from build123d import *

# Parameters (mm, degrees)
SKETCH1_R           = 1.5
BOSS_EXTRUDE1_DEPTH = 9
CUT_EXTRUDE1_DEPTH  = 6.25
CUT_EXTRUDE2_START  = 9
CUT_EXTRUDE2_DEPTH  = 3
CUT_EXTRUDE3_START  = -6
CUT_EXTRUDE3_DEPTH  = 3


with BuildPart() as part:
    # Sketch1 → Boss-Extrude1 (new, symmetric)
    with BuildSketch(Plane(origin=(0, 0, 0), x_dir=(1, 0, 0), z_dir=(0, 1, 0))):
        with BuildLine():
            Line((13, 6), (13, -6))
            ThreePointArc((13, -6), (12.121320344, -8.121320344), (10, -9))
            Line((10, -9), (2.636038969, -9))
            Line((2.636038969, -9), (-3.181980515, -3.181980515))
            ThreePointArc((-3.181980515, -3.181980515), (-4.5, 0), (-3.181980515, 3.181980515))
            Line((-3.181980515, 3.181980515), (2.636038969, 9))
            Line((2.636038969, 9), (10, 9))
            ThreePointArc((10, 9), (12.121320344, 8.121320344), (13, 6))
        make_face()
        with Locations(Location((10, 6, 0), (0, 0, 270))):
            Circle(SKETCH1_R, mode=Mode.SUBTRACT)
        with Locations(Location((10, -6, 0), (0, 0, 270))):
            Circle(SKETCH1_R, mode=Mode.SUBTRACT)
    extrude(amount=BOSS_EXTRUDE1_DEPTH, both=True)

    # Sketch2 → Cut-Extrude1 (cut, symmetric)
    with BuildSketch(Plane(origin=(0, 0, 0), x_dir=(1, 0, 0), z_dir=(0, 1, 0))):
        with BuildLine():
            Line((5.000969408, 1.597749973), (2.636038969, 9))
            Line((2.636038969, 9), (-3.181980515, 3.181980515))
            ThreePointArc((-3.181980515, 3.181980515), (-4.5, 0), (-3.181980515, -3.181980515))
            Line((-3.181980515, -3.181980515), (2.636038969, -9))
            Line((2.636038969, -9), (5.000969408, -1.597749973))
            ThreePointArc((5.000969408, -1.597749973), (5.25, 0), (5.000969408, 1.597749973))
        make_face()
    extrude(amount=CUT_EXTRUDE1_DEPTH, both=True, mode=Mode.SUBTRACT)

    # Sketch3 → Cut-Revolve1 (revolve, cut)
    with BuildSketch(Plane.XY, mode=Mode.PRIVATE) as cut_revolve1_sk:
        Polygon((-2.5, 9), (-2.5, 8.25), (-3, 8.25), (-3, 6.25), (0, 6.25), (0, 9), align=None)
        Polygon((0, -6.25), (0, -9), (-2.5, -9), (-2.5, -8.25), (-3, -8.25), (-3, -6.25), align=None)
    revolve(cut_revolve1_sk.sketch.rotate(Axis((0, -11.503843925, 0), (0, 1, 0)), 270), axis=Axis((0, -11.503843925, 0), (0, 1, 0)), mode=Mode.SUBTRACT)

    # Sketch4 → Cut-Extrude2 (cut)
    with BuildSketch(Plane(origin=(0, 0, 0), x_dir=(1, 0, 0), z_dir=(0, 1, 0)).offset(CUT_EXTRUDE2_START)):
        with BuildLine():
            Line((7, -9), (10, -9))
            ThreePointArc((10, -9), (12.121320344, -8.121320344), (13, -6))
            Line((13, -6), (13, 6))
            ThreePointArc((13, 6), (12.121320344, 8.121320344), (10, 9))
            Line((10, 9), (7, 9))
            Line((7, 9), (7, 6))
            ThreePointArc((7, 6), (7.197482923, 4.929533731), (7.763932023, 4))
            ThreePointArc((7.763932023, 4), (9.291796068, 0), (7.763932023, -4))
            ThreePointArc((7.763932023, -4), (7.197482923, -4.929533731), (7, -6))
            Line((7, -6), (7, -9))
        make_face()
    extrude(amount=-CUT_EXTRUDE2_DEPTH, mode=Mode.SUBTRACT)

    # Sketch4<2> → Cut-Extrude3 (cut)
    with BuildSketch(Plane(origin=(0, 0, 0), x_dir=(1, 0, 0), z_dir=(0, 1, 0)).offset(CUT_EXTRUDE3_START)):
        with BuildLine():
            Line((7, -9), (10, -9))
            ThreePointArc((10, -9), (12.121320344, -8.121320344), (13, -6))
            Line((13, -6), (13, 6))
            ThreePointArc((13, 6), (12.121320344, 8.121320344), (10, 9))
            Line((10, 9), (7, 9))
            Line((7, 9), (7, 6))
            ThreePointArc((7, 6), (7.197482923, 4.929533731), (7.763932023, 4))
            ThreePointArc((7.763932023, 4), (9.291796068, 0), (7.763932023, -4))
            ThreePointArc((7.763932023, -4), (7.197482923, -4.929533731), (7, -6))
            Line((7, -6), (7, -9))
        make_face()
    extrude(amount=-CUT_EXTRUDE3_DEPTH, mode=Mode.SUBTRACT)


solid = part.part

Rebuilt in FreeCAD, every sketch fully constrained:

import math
import FreeCAD as App
import Part
import Sketcher
Q = App.Units.Quantity


def add_polygon(sketch, points):
    """Adds a closed chain of lines whose ends are joined by coincident constraints."""
    first, n = sketch.GeometryCount, len(points)
    for a, b in zip(points, points[1:] + points[:1]):
        sketch.addGeometry(Part.LineSegment(App.Vector(*a, 0), App.Vector(*b, 0)), False)
    for i in range(n):
        sketch.addConstraint(Sketcher.Constraint("Coincident", first + i, 2, first + (i + 1) % n, 1))

doc = App.newDocument("Part")
body = doc.addObject("PartDesign::Body", "Body")

sketch1 = body.newObject("Sketcher::SketchObject", "Sketch")
sketch1.AttachmentSupport = (doc.getObject("XZ_Plane"), [""])
sketch1.MapMode = "FlatFace"
sketch1.addGeometry(Part.LineSegment(App.Vector(13, 6, 0), App.Vector(13, -6, 0)), False)
sketch1.addGeometry(Part.ArcOfCircle(Part.Circle(App.Vector(10, -6, 0), App.Vector(0, 0, 1), 3), math.radians(-90), math.radians(0)), False)
sketch1.addGeometry(Part.LineSegment(App.Vector(10, -9, 0), App.Vector(2.6, -9, 0)), False)
sketch1.addGeometry(Part.LineSegment(App.Vector(2.6, -9, 0), App.Vector(-3.2, -3.2, 0)), False)
sketch1.addGeometry(Part.ArcOfCircle(Part.Circle(App.Vector(0, 0, 0), App.Vector(0, 0, 1), 4.5), math.radians(135), math.radians(225)), False)
sketch1.addGeometry(Part.LineSegment(App.Vector(-3.2, 3.2, 0), App.Vector(2.6, 9, 0)), False)
sketch1.addGeometry(Part.LineSegment(App.Vector(2.6, 9, 0), App.Vector(10, 9, 0)), False)
sketch1.addGeometry(Part.ArcOfCircle(Part.Circle(App.Vector(10, 6, 0), App.Vector(0, 0, 1), 3), math.radians(0), math.radians(90)), False)
sketch1.addGeometry(Part.Circle(App.Vector(10, 6, 0), App.Vector(0, 0, 1), 1.5), False)
sketch1.addGeometry(Part.Circle(App.Vector(10, -6, 0), App.Vector(0, 0, 1), 1.5), False)
sketch1.addConstraint(Sketcher.Constraint("Tangent", 0, 2, 1, 2))
sketch1.addConstraint(Sketcher.Constraint("Tangent", 1, 1, 2, 1))
sketch1.addConstraint(Sketcher.Constraint("Coincident", 2, 2, 3, 1))
sketch1.addConstraint(Sketcher.Constraint("Tangent", 3, 2, 4, 2))
sketch1.addConstraint(Sketcher.Constraint("Tangent", 4, 1, 5, 1))
sketch1.addConstraint(Sketcher.Constraint("Coincident", 5, 2, 6, 1))
sketch1.addConstraint(Sketcher.Constraint("Tangent", 6, 2, 7, 2))
sketch1.addConstraint(Sketcher.Constraint("Tangent", 7, 1, 0, 1))
sketch1.addConstraint(Sketcher.Constraint("Vertical", 0))
sketch1.addConstraint(Sketcher.Constraint("Horizontal", 2))
sketch1.addConstraint(Sketcher.Constraint("Horizontal", 6))
sketch1.addConstraint(Sketcher.Constraint("Coincident", 4, 3, -1, 1))
sketch1.addConstraint(Sketcher.Constraint("Coincident", 8, 3, 7, 3))
sketch1.addConstraint(Sketcher.Constraint("Coincident", 9, 3, 1, 3))
sketch1.addConstraint(Sketcher.Constraint("Equal", 1, 7))
sketch1.addConstraint(Sketcher.Constraint("Equal", 8, 9))
sketch1.addConstraint(Sketcher.Constraint("Symmetric", 2, 2, 5, 2, -1))
sketch1.addConstraint(Sketcher.Constraint("Perpendicular", 3, 5))
sketch1.addConstraint(Sketcher.Constraint("Diameter", 8, Q("3 mm")))
sketch1.addConstraint(Sketcher.Constraint("Radius", 1, Q("3 mm")))
sketch1.addConstraint(Sketcher.Constraint("Radius", 4, Q("4.5 mm")))
sketch1.addConstraint(Sketcher.Constraint("DistanceY", 0, 2, 0, 1, Q("12 mm")))
sketch1.addConstraint(Sketcher.Constraint("DistanceX", -1, 1, 1, 3, Q("10 mm")))
pad1 = body.newObject("PartDesign::Pad", "Pad")
pad1.Profile = sketch1
pad1.Length = 18
pad1.Midplane = True

sketch2 = body.newObject("Sketcher::SketchObject", "Sketch001")
sketch2.AttachmentSupport = (doc.getObject("XZ_Plane"), [""])
sketch2.MapMode = "FlatFace"
sketch2.addGeometry(Part.LineSegment(App.Vector(5, -1.6, 0), App.Vector(2.6, -9, 0)), False)
sketch2.addGeometry(Part.LineSegment(App.Vector(2.6, -9, 0), App.Vector(-3.2, -3.2, 0)), False)
sketch2.addGeometry(Part.ArcOfCircle(Part.Circle(App.Vector(0, 0, 0), App.Vector(0, 0, 1), 4.5), math.radians(135), math.radians(225)), False)
sketch2.addGeometry(Part.LineSegment(App.Vector(-3.2, 3.2, 0), App.Vector(2.6, 9, 0)), False)
sketch2.addGeometry(Part.LineSegment(App.Vector(2.6, 9, 0), App.Vector(5, 1.6, 0)), False)
sketch2.addGeometry(Part.ArcOfCircle(Part.Circle(App.Vector(0, 0, 0), App.Vector(0, 0, 1), 5.2), math.radians(-18), math.radians(18)), False)
sketch2.addConstraint(Sketcher.Constraint("Coincident", 0, 2, 1, 1))
sketch2.addConstraint(Sketcher.Constraint("Tangent", 1, 2, 2, 2))
sketch2.addConstraint(Sketcher.Constraint("Tangent", 2, 1, 3, 1))
sketch2.addConstraint(Sketcher.Constraint("Coincident", 3, 2, 4, 1))
sketch2.addConstraint(Sketcher.Constraint("Tangent", 4, 2, 5, 2))
sketch2.addConstraint(Sketcher.Constraint("Tangent", 5, 1, 0, 1))
sketch2.addConstraint(Sketcher.Constraint("Coincident", 2, 3, -1, 1))
sketch2.addConstraint(Sketcher.Constraint("Coincident", 5, 3, -1, 1))
sketch2.addConstraint(Sketcher.Constraint("Symmetric", 0, 2, 3, 2, -1))
sketch2.addConstraint(Sketcher.Constraint("Perpendicular", 1, 3))
sketch2.addConstraint(Sketcher.Constraint("Radius", 2, Q("4.5 mm")))
sketch2.addConstraint(Sketcher.Constraint("Radius", 5, Q("5.25 mm")))
sketch2.addConstraint(Sketcher.Constraint("DistanceY", 0, 2, -1, 1, Q("9 mm")))
pocket1 = body.newObject("PartDesign::Pocket", "Pocket")
pocket1.Profile = sketch2
pocket1.Length = 12.5
pocket1.Midplane = True

sketch3 = body.newObject("Sketcher::SketchObject", "Sketch002")
sketch3.AttachmentSupport = (doc.getObject("XY_Plane"), [""])
sketch3.MapMode = "FlatFace"
add_polygon(sketch3, [(-2.5, 9), (-2.5, 8.2), (-3, 8.2), (-3, 6.2), (0, 6.2), (0, 9)])
add_polygon(sketch3, [(0, -9), (0, -6.2), (-3, -6.2), (-3, -8.2), (-2.5, -8.2), (-2.5, -9)])
sketch3.addConstraint(Sketcher.Constraint("Vertical", 0))
sketch3.addConstraint(Sketcher.Constraint("Horizontal", 1))
sketch3.addConstraint(Sketcher.Constraint("Vertical", 2))
sketch3.addConstraint(Sketcher.Constraint("Horizontal", 3))
sketch3.addConstraint(Sketcher.Constraint("Vertical", 4))
sketch3.addConstraint(Sketcher.Constraint("Horizontal", 5))
sketch3.addConstraint(Sketcher.Constraint("Vertical", 6))
sketch3.addConstraint(Sketcher.Constraint("Horizontal", 7))
sketch3.addConstraint(Sketcher.Constraint("Vertical", 8))
sketch3.addConstraint(Sketcher.Constraint("Horizontal", 9))
sketch3.addConstraint(Sketcher.Constraint("Vertical", 10))
sketch3.addConstraint(Sketcher.Constraint("Horizontal", 11))
sketch3.addConstraint(Sketcher.Constraint("Symmetric", 3, 2, 6, 2, -1, 1))
sketch3.addConstraint(Sketcher.Constraint("Symmetric", 1, 2, 8, 2, -1))
sketch3.addConstraint(Sketcher.Constraint("Symmetric", 5, 2, 10, 2, -1))
sketch3.addConstraint(Sketcher.Constraint("PointOnObject", 3, 2, -2))
sketch3.addConstraint(Sketcher.Constraint("DistanceX", 3, 1, 3, 2, Q("3 mm")))
sketch3.addConstraint(Sketcher.Constraint("DistanceY", 2, 2, 2, 1, Q("2 mm")))
sketch3.addConstraint(Sketcher.Constraint("DistanceX", 1, 2, 1, 1, Q("0.5 mm")))
sketch3.addConstraint(Sketcher.Constraint("DistanceY", -1, 1, 4, 2, Q("9 mm")))
sketch3.addConstraint(Sketcher.Constraint("DistanceY", 0, 2, 0, 1, Q("0.75 mm")))
groove = body.newObject("PartDesign::Groove", "Groove")
groove.Profile = sketch3
groove.ReferenceAxis = (sketch3, ["V_Axis"])
groove.Angle = 360

sketch4 = body.newObject("Sketcher::SketchObject", "Sketch003")
sketch4.AttachmentSupport = (doc.getObject("XZ_Plane"), [""])
sketch4.MapMode = "FlatFace"
sketch4.AttachmentOffset = App.Placement(App.Vector(0, 0, -9), App.Rotation())
sketch4.addGeometry(Part.LineSegment(App.Vector(7, 9, 0), App.Vector(10, 9, 0)), False)
sketch4.addGeometry(Part.ArcOfCircle(Part.Circle(App.Vector(10, 6, 0), App.Vector(0, 0, 1), 3), math.radians(0), math.radians(90)), False)
sketch4.addGeometry(Part.LineSegment(App.Vector(13, 6, 0), App.Vector(13, -6, 0)), False)
sketch4.addGeometry(Part.ArcOfCircle(Part.Circle(App.Vector(10, -6, 0), App.Vector(0, 0, 1), 3), math.radians(-90), math.radians(0)), False)
sketch4.addGeometry(Part.LineSegment(App.Vector(10, -9, 0), App.Vector(7, -9, 0)), False)
sketch4.addGeometry(Part.LineSegment(App.Vector(7, -9, 0), App.Vector(7, -6, 0)), False)
sketch4.addGeometry(Part.ArcOfCircle(Part.Circle(App.Vector(10, -6, 0), App.Vector(0, 0, 1), 3), math.radians(138), math.radians(180)), False)
sketch4.addGeometry(Part.ArcOfCircle(Part.Circle(App.Vector(3.3, 0, 0), App.Vector(0, 0, 1), 6), math.radians(-42), math.radians(42)), False)
sketch4.addGeometry(Part.ArcOfCircle(Part.Circle(App.Vector(10, 6, 0), App.Vector(0, 0, 1), 3), math.radians(180), math.radians(222)), False)
sketch4.addGeometry(Part.LineSegment(App.Vector(7, 6, 0), App.Vector(7, 9, 0)), False)
sketch4.addConstraint(Sketcher.Constraint("Tangent", 0, 2, 1, 2))
sketch4.addConstraint(Sketcher.Constraint("Tangent", 1, 1, 2, 1))
sketch4.addConstraint(Sketcher.Constraint("Tangent", 2, 2, 3, 2))
sketch4.addConstraint(Sketcher.Constraint("Tangent", 3, 1, 4, 1))
sketch4.addConstraint(Sketcher.Constraint("Coincident", 4, 2, 5, 1))
sketch4.addConstraint(Sketcher.Constraint("Tangent", 5, 2, 6, 2))
sketch4.addConstraint(Sketcher.Constraint("Tangent", 6, 1, 7, 1))
sketch4.addConstraint(Sketcher.Constraint("Tangent", 7, 2, 8, 2))
sketch4.addConstraint(Sketcher.Constraint("Tangent", 8, 1, 9, 1))
sketch4.addConstraint(Sketcher.Constraint("Coincident", 9, 2, 0, 1))
sketch4.addConstraint(Sketcher.Constraint("Horizontal", 0))
sketch4.addConstraint(Sketcher.Constraint("Vertical", 2))
sketch4.addConstraint(Sketcher.Constraint("Horizontal", 4))
sketch4.addConstraint(Sketcher.Constraint("Vertical", 5))
sketch4.addConstraint(Sketcher.Constraint("Vertical", 9))
sketch4.addConstraint(Sketcher.Constraint("Coincident", 6, 3, 3, 3))
sketch4.addConstraint(Sketcher.Constraint("Coincident", 8, 3, 1, 3))
sketch4.addConstraint(Sketcher.Constraint("Equal", 1, 3))
sketch4.addConstraint(Sketcher.Constraint("Equal", 3, 6))
sketch4.addConstraint(Sketcher.Constraint("Equal", 6, 8))
sketch4.addConstraint(Sketcher.Constraint("PointOnObject", 7, 3, -1))
sketch4.addConstraint(Sketcher.Constraint("Radius", 1, Q("3 mm")))
sketch4.addConstraint(Sketcher.Constraint("Radius", 7, Q("6 mm")))
sketch4.addConstraint(Sketcher.Constraint("DistanceY", 2, 2, 2, 1, Q("12 mm")))
sketch4.addConstraint(Sketcher.Constraint("DistanceX", -1, 1, 1, 3, Q("10 mm")))
pocket2 = body.newObject("PartDesign::Pocket", "Pocket001")
pocket2.Profile = sketch4
pocket2.Length = 3
pocket2.Reversed = True

sketch5 = body.newObject("Sketcher::SketchObject", "Sketch004")
sketch5.AttachmentSupport = (doc.getObject("XZ_Plane"), [""])
sketch5.MapMode = "FlatFace"
sketch5.AttachmentOffset = App.Placement(App.Vector(0, 0, 6), App.Rotation())
sketch5.addGeometry(Part.LineSegment(App.Vector(7, 9, 0), App.Vector(10, 9, 0)), False)
sketch5.addGeometry(Part.ArcOfCircle(Part.Circle(App.Vector(10, 6, 0), App.Vector(0, 0, 1), 3), math.radians(0), math.radians(90)), False)
sketch5.addGeometry(Part.LineSegment(App.Vector(13, 6, 0), App.Vector(13, -6, 0)), False)
sketch5.addGeometry(Part.ArcOfCircle(Part.Circle(App.Vector(10, -6, 0), App.Vector(0, 0, 1), 3), math.radians(-90), math.radians(0)), False)
sketch5.addGeometry(Part.LineSegment(App.Vector(10, -9, 0), App.Vector(7, -9, 0)), False)
sketch5.addGeometry(Part.LineSegment(App.Vector(7, -9, 0), App.Vector(7, -6, 0)), False)
sketch5.addGeometry(Part.ArcOfCircle(Part.Circle(App.Vector(10, -6, 0), App.Vector(0, 0, 1), 3), math.radians(138), math.radians(180)), False)
sketch5.addGeometry(Part.ArcOfCircle(Part.Circle(App.Vector(3.3, 0, 0), App.Vector(0, 0, 1), 6), math.radians(-42), math.radians(42)), False)
sketch5.addGeometry(Part.ArcOfCircle(Part.Circle(App.Vector(10, 6, 0), App.Vector(0, 0, 1), 3), math.radians(180), math.radians(222)), False)
sketch5.addGeometry(Part.LineSegment(App.Vector(7, 6, 0), App.Vector(7, 9, 0)), False)
sketch5.addConstraint(Sketcher.Constraint("Tangent", 0, 2, 1, 2))
sketch5.addConstraint(Sketcher.Constraint("Tangent", 1, 1, 2, 1))
sketch5.addConstraint(Sketcher.Constraint("Tangent", 2, 2, 3, 2))
sketch5.addConstraint(Sketcher.Constraint("Tangent", 3, 1, 4, 1))
sketch5.addConstraint(Sketcher.Constraint("Coincident", 4, 2, 5, 1))
sketch5.addConstraint(Sketcher.Constraint("Tangent", 5, 2, 6, 2))
sketch5.addConstraint(Sketcher.Constraint("Tangent", 6, 1, 7, 1))
sketch5.addConstraint(Sketcher.Constraint("Tangent", 7, 2, 8, 2))
sketch5.addConstraint(Sketcher.Constraint("Tangent", 8, 1, 9, 1))
sketch5.addConstraint(Sketcher.Constraint("Coincident", 9, 2, 0, 1))
sketch5.addConstraint(Sketcher.Constraint("Horizontal", 0))
sketch5.addConstraint(Sketcher.Constraint("Vertical", 2))
sketch5.addConstraint(Sketcher.Constraint("Horizontal", 4))
sketch5.addConstraint(Sketcher.Constraint("Vertical", 5))
sketch5.addConstraint(Sketcher.Constraint("Vertical", 9))
sketch5.addConstraint(Sketcher.Constraint("Coincident", 6, 3, 3, 3))
sketch5.addConstraint(Sketcher.Constraint("Coincident", 8, 3, 1, 3))
sketch5.addConstraint(Sketcher.Constraint("Equal", 1, 3))
sketch5.addConstraint(Sketcher.Constraint("Equal", 3, 6))
sketch5.addConstraint(Sketcher.Constraint("Equal", 6, 8))
sketch5.addConstraint(Sketcher.Constraint("PointOnObject", 7, 3, -1))
sketch5.addConstraint(Sketcher.Constraint("Radius", 1, Q("3 mm")))
sketch5.addConstraint(Sketcher.Constraint("Radius", 7, Q("6 mm")))
sketch5.addConstraint(Sketcher.Constraint("DistanceY", 2, 2, 2, 1, Q("12 mm")))
sketch5.addConstraint(Sketcher.Constraint("DistanceX", -1, 1, 1, 3, Q("10 mm")))
pocket3 = body.newObject("PartDesign::Pocket", "Pocket002")
pocket3.Profile = sketch5
pocket3.Length = 3
pocket3.Reversed = True

doc.recompute()
